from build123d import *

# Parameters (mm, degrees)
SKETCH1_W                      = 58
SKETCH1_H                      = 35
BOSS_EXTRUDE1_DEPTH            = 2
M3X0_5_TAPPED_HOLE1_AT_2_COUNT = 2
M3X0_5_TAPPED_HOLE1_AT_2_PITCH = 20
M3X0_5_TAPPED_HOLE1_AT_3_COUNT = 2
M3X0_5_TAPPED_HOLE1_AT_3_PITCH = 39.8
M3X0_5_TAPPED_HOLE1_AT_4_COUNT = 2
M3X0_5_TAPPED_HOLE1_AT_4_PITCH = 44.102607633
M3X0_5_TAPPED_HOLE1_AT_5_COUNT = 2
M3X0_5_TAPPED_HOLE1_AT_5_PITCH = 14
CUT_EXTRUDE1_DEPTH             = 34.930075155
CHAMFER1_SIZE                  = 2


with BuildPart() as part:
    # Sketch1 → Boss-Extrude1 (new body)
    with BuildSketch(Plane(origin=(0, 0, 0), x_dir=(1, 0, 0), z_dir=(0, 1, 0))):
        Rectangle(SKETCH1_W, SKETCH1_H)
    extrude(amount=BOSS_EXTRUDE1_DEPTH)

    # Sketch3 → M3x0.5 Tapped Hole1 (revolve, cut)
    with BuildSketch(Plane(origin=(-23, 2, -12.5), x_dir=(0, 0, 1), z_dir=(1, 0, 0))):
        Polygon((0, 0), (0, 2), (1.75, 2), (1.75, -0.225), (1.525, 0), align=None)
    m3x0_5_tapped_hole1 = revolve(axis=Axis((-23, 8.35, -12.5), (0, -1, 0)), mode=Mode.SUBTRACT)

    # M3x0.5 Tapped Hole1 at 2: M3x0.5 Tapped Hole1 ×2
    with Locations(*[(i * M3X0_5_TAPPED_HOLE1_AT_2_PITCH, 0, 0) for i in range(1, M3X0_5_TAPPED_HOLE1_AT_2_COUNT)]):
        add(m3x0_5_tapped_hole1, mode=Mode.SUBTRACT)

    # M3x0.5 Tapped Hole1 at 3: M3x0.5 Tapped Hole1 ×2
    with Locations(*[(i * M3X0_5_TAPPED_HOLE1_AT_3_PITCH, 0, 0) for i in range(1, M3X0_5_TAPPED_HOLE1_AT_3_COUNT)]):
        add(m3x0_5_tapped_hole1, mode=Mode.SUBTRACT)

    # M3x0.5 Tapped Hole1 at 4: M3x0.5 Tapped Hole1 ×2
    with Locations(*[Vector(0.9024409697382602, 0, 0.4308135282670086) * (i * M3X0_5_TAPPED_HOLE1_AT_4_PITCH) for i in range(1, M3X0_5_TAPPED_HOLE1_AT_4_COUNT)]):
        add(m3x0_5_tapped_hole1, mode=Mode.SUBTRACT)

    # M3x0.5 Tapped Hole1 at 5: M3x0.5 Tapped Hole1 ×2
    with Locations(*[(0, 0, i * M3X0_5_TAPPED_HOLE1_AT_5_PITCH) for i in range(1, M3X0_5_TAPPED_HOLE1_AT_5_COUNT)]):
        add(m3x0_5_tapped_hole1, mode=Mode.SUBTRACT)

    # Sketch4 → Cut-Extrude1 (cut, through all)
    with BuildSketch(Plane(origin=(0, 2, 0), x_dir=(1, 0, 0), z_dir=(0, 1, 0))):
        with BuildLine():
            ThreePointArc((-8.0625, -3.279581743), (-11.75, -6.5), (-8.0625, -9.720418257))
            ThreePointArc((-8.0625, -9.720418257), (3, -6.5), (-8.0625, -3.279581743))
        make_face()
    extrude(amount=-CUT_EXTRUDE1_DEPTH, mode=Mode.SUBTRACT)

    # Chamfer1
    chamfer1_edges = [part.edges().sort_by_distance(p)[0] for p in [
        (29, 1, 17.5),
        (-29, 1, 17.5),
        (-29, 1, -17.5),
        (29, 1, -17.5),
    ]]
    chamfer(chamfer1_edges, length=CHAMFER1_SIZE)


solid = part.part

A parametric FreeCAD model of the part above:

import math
import FreeCAD as App
import Part
import Sketcher
Q = App.Units.Quantity


def edges_at(feature, points):
    """Names of the edges that pass closest to the given points."""
    edges = feature.Shape.Edges
    near = lambda p: min(range(len(edges)), key=lambda i: edges[i].distToShape(Part.Vertex(*p))[0])
    return sorted({f"Edge{near(p) + 1}" for p in points})


def add_polygon(sketch, points):
    """Adds a closed chain of lines whose ends are joined by coincident constraints."""
    first, n = sketch.GeometryCount, len(points)
    for a, b in zip(points, points[1:] + points[:1]):
        sketch.addGeometry(Part.LineSegment(App.Vector(*a, 0), App.Vector(*b, 0)), False)
    for i in range(n):
        sketch.addConstraint(Sketcher.Constraint("Coincident", first + i, 2, first + (i + 1) % n, 1))

doc = App.newDocument("Part")
body = doc.addObject("PartDesign::Body", "Body")

sketch1 = body.newObject("Sketcher::SketchObject", "Sketch")
sketch1.AttachmentSupport = (doc.getObject("XZ_Plane"), [""])
sketch1.MapMode = "FlatFace"
add_polygon(sketch1, [(-29, -18), (-29, 18), (29, 18), (29, -18)])
sketch1.addConstraint([
    Sketcher.Constraint("Vertical", 0),
    Sketcher.Constraint("Horizontal", 1),
    Sketcher.Constraint("Vertical", 2),
    Sketcher.Constraint("Horizontal", 3),
    Sketcher.Constraint("Symmetric", 0, 2, 2, 2, -1, 1),
    Sketcher.Constraint("DistanceX", 1, 1, 1, 2, 58.0),
    Sketcher.Constraint("DistanceY", 0, 1, 0, 2, 35.0),
])
pad1 = body.newObject("PartDesign::Pad", "Pad")
pad1.Profile = sketch1
pad1.Length = 2
pad1.Reversed = True

sketch2 = body.newObject("Sketcher::SketchObject", "Sketch001")
sketch2.AttachmentSupport = (doc.getObject("YZ_Plane"), [""])
sketch2.MapMode = "FlatFace"
sketch2.AttachmentOffset = App.Placement(App.Vector(0, 0, -23), App.Rotation())
add_polygon(sketch2, [(0, -12.5), (2, -12.5), (2, -10.97), (2.23, -10.75), (0, -10.75)])
sketch2.addGeometry(Part.LineSegment(App.Vector(2.23, -12.5, 0), App.Vector(0, -12.5, 0)), True)
sketch2.addConstraint([
    Sketcher.Constraint("Horizontal", 0),
    Sketcher.Constraint("Vertical", 1),
    Sketcher.Constraint("Horizontal", 3),
    Sketcher.Constraint("Vertical", 4),
    Sketcher.Constraint("Horizontal", 5),
    Sketcher.Constraint("Coincident", 5, 2, 4, 2),
    Sketcher.Constraint("PointOnObject", 3, 2, -2),
    Sketcher.Constraint("Vertical", 2, 2, 5, 1),
    Sketcher.Constraint("DistanceX", 0, 1, 0, 2, 2.0),
    Sketcher.Constraint("Angle", 2, Q("45 deg")),
    Sketcher.Constraint("DistanceY", 4, 2, 4, 1, 1.75),
    Sketcher.Constraint("DistanceY", 0, 2, -1, 1, 12.5),
    Sketcher.Constraint("DistanceX", 3, 2, 3, 1, 2.225),
])
groove = body.newObject("PartDesign::Groove", "Groove")
groove.Profile = sketch2
groove.ReferenceAxis = (sketch2, ["Axis0"])
groove.Angle = 360
doc.recompute()

linearpattern = body.newObject("PartDesign::LinearPattern", "LinearPattern")
linearpattern.Originals = [groove]
linearpattern.Direction = (doc.getObject("X_Axis"), [""])
linearpattern.Mode = "offset"
linearpattern.Offset = 20
linearpattern.Occurrences = 2
body.Tip = linearpattern
doc.recompute()

linearpattern2 = body.newObject("PartDesign::LinearPattern", "LinearPattern001")
linearpattern2.Originals = [groove]
linearpattern2.Direction = (doc.getObject("X_Axis"), [""])
linearpattern2.Mode = "offset"
linearpattern2.Offset = 39.8
linearpattern2.Occurrences = 2
body.Tip = linearpattern2
doc.recompute()

datumline = body.newObject("PartDesign::Line", "DatumLine")
datumline.Placement = App.Placement(App.Vector(0, 0, 0), App.Rotation(App.Vector(0, 0, 1), App.Vector(0.90244097, 0, 0.430813528)))
linearpattern3 = body.newObject("PartDesign::LinearPattern", "LinearPattern002")
linearpattern3.Originals = [groove]
linearpattern3.Direction = (datumline, [""])
linearpattern3.Mode = "offset"
linearpattern3.Offset = 44.102608
linearpattern3.Occurrences = 2
body.Tip = linearpattern3
doc.recompute()

linearpattern4 = body.newObject("PartDesign::LinearPattern", "LinearPattern003")
linearpattern4.Originals = [groove]
linearpattern4.Direction = (doc.getObject("Z_Axis"), [""])
linearpattern4.Mode = "offset"
linearpattern4.Offset = 14
linearpattern4.Occurrences = 2
body.Tip = linearpattern4

sketch3 = body.newObject("Sketcher::SketchObject", "Sketch002")
sketch3.AttachmentSupport = (doc.getObject("XZ_Plane"), [""])
sketch3.MapMode = "FlatFace"
sketch3.AttachmentOffset = App.Placement(App.Vector(0, 0, -2), App.Rotation())
sketch3.addGeometry([
    Part.ArcOfCircle(Part.Circle(App.Vector(-8.5, 6.5, 0), App.Vector(0, 0, 1), 3.2), math.radians(82), math.radians(278)),
    Part.ArcOfCircle(Part.Circle(App.Vector(-3, 6.5, 0), App.Vector(0, 0, 1), 6), math.radians(-148), math.radians(148)),
], False)
sketch3.addConstraint([
    Sketcher.Constraint("Coincident", 0, 1, 1, 2),
    Sketcher.Constraint("Coincident", 1, 1, 0, 2),
    Sketcher.Constraint("Horizontal", 0, 3, 1, 3),
    Sketcher.Constraint("Radius", 1, 6.0),
    Sketcher.Constraint("Radius", 0, 3.25),
    Sketcher.Constraint("DistanceX", 1, 3, -1, 1, 3.0),
    Sketcher.Constraint("DistanceX", 0, 3, -1, 1, 8.5),
    Sketcher.Constraint("DistanceY", -1, 1, 0, 3, 6.5),
])
pocket1 = body.newObject("PartDesign::Pocket", "Pocket")
pocket1.Profile = sketch3
pocket1.Type = "ThroughAll"
pocket1.Reversed = True
doc.recompute()

chamfer = body.newObject("PartDesign::Chamfer", "Chamfer")
chamfer.Base = (pocket1, edges_at(pocket1, [
    (29, 1, 17.5),
    (-29, 1, 17.5),
    (-29, 1, -17.5),
    (29, 1, -17.5),
]))
chamfer.Size = 2

doc.recompute()
